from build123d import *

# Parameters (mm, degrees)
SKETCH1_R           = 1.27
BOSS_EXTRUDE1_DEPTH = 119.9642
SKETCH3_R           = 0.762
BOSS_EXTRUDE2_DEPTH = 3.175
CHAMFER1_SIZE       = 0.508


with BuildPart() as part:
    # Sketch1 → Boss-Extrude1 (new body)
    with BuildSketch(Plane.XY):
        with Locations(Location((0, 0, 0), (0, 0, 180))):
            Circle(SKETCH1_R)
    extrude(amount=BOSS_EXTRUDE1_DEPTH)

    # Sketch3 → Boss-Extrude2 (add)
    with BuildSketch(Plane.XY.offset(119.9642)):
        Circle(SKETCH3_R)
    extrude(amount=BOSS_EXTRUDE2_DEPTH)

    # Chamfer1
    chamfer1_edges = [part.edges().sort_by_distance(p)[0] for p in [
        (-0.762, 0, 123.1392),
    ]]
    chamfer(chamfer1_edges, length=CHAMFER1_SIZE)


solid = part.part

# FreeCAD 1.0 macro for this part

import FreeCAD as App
import Part
import Sketcher
Q = App.Units.Quantity


def edges_at(feature, points):
    """Names of the edges that pass closest to the given points."""
    edges = feature.Shape.Edges
    near = lambda p: min(range(len(edges)), key=lambda i: edges[i].distToShape(Part.Vertex(*p))[0])
    return sorted({f"Edge{near(p) + 1}" for p in points})

doc = App.newDocument("Part")
body = doc.addObject("PartDesign::Body", "Body")

# Sketch on XY plane
sketch1 = doc.addObject("Sketcher::SketchObject", "Sketch")
body.addObject(sketch1)
sketch1.AttachmentSupport = (doc.XY_Plane, [""])
sketch1.MapMode = "FlatFace"
sketch1.addGeometry(Part.Circle(App.Vector(0, 0, 0), App.Vector(0, 0, 1), 1.3), False)
sketch1.addConstraint([
    Sketcher.Constraint("Coincident", 0, 3, -1, 1),
    Sketcher.Constraint("Diameter", 0, Q("0.1 in")),
])
pad1 = doc.addObject("PartDesign::Pad", "Pad")
body.addObject(pad1)
pad1.Profile = sketch1
pad1.Length = Q("4.723 in")

# Sketch on XY plane
sketch2 = doc.addObject("Sketcher::SketchObject", "Sketch001")
body.addObject(sketch2)
sketch2.AttachmentSupport = (doc.XY_Plane, [""])
sketch2.MapMode = "FlatFace"
sketch2.AttachmentOffset = App.Placement(App.Vector(0, 0, 4.723 * 25.4), App.Rotation())
sketch2.addGeometry(Part.Circle(App.Vector(0, 0, 0), App.Vector(0, 0, 1), 0.8), False)
sketch2.addConstraint([
    Sketcher.Constraint("Coincident", 0, 3, -1, 1),
    Sketcher.Constraint("Diameter", 0, Q("0.06 in")),
])
pad2 = doc.addObject("PartDesign::Pad", "Pad001")
body.addObject(pad2)
pad2.Profile = sketch2
pad2.Length = Q("0.125 in")
doc.recompute()

chamfer = doc.addObject("PartDesign::Chamfer", "Chamfer")
body.addObject(chamfer)
chamfer.Base = (pad2, edges_at(pad2, [(-0.762, 0, 123.139)]))
chamfer.Size = Q("0.02 in")

doc.recompute()
